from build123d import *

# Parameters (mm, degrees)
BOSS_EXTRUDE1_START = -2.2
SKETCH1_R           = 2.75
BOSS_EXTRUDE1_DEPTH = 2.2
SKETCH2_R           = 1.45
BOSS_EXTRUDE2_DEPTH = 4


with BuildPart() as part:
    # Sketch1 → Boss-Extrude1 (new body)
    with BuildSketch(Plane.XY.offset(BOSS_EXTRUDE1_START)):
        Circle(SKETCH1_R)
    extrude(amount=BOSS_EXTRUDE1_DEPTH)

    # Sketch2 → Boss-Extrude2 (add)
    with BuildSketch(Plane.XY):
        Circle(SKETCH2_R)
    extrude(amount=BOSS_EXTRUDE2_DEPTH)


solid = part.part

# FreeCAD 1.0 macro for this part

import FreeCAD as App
import Part
import Sketcher

V = App.Vector

doc = App.newDocument("Part")
params = doc.addObject("Spreadsheet::Sheet", "Params")
for row, (alias, value) in enumerate([
    ("sketch1_diameter", "5.5 mm"),
    ("pad1_length", "2.2 mm"),
    ("sketch2_diameter", "2.9 mm"),
    ("pad2_length", "4 mm"),
], start=1):
    params.set(f"A{row}", alias)
    params.set(f"B{row}", "=" + value)
    params.setAlias(f"B{row}", alias)

body = doc.addObject("PartDesign::Body", "Body")

sketch1 = body.newObject("Sketcher::SketchObject", "Sketch")
sketch1.AttachmentSupport = (doc.getObject("XY_Plane"), [""])
sketch1.MapMode = "FlatFace"
sketch1.AttachmentOffset = App.Placement(V(0, 0, -2.2), App.Rotation())
sketch1.addGeometry(Part.Circle(V(0, 0, 0), V(0, 0, 1), 2.8), False)
sketch1.addConstraint(Sketcher.Constraint("Coincident", 0, 3, -1, 1))
sketch1.addConstraint(Sketcher.Constraint("Diameter", 0, 5.5))
sketch1.setExpression("Constraints[1]", "Params.sketch1_diameter")
pad1 = body.newObject("PartDesign::Pad", "Pad")
pad1.Profile = sketch1
pad1.setExpression("Length", "Params.pad1_length")

sketch2 = body.newObject("Sketcher::SketchObject", "Sketch001")
sketch2.AttachmentSupport = (doc.getObject("XY_Plane"), [""])
sketch2.MapMode = "FlatFace"
sketch2.addGeometry(Part.Circle(V(0, 0, 0), V(0, 0, 1), 1.4), False)
sketch2.addConstraint(Sketcher.Constraint("Coincident", 0, 3, -1, 1))
sketch2.addConstraint(Sketcher.Constraint("Diameter", 0, 2.9))
sketch2.setExpression("Constraints[1]", "Params.sketch2_diameter")
pad2 = body.newObject("PartDesign::Pad", "Pad001")
pad2.Profile = sketch2
pad2.setExpression("Length", "Params.pad2_length")

doc.recompute()
